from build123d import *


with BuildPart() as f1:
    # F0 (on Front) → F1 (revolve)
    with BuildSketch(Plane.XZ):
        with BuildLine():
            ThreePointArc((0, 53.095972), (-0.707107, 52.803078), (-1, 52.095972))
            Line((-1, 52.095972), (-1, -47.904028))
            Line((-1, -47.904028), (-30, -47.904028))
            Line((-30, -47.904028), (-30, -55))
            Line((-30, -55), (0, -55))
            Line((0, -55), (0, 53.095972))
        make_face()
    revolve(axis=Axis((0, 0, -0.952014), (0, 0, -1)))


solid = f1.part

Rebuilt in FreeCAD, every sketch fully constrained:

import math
import FreeCAD as App
import Part
import Sketcher

V = App.Vector

doc = App.newDocument("Part")
body = doc.addObject("PartDesign::Body", "Body")

# Sketch on XZ plane
sketch1 = doc.addObject("Sketcher::SketchObject", "Sketch")
body.addObject(sketch1)
sketch1.AttachmentSupport = (doc.XZ_Plane, [""])
sketch1.MapMode = "FlatFace"
sketch1.addGeometry([
    Part.ArcOfCircle(Part.Circle(V(0, 52.1, 0), V(0, 0, 1), 1), math.radians(90), math.radians(180)),  # 0
    Part.LineSegment(V(-1, 52.1, 0), V(-1, -47.9, 0)),  # 1
    Part.LineSegment(V(-1, -47.9, 0), V(-30, -47.9, 0)),  # 2
    Part.LineSegment(V(-30, -47.9, 0), V(-30, -55, 0)),  # 3
    Part.LineSegment(V(-30, -55, 0), V(0, -55, 0)),  # 4
    Part.LineSegment(V(0, -55, 0), V(0, 53.1, 0)),  # 5
], False)
sketch1.addConstraint([
    Sketcher.Constraint("Tangent", 0, 2, 1, 1),
    Sketcher.Constraint("Coincident", 1, 2, 2, 1),
    Sketcher.Constraint("Coincident", 2, 2, 3, 1),
    Sketcher.Constraint("Coincident", 3, 2, 4, 1),
    Sketcher.Constraint("Coincident", 4, 2, 5, 1),
    Sketcher.Constraint("Coincident", 5, 2, 0, 1),
    Sketcher.Constraint("Vertical", 1),
    Sketcher.Constraint("Horizontal", 2),
    Sketcher.Constraint("Vertical", 3),
    Sketcher.Constraint("Horizontal", 4),
    Sketcher.Constraint("Vertical", 5),
    Sketcher.Constraint("PointOnObject", 0, 3, -2),
    Sketcher.Constraint("PointOnObject", 4, 2, -2),
    Sketcher.Constraint("Radius", 0, 1.000001),
    Sketcher.Constraint("DistanceX", 2, 2, 2, 1, 29.0),
    Sketcher.Constraint("DistanceY", 1, 2, 1, 1, 100.0),
    Sketcher.Constraint("DistanceY", 3, 2, -1, 1, 55.0),
    Sketcher.Constraint("DistanceY", 3, 2, 3, 1, 7.095972),
])
revolution = doc.addObject("PartDesign::Revolution", "Revolution")
body.addObject(revolution)
revolution.Profile = sketch1
revolution.ReferenceAxis = (sketch1, ["V_Axis"])
revolution.Angle = 360

doc.recompute()
